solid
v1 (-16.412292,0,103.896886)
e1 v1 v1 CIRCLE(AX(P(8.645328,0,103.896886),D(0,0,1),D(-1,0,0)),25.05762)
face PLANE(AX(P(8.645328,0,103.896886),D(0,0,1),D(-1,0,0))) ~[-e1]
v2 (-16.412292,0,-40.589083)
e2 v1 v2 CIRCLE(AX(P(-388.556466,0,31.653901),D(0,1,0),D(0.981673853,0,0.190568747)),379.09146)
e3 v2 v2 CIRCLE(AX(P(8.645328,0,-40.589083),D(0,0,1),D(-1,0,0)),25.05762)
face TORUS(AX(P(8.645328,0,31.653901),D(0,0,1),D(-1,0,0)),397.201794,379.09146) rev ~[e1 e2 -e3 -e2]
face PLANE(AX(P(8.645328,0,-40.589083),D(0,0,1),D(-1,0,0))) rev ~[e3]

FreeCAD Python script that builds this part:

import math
import FreeCAD as App
import Part
import Sketcher

doc = App.newDocument("Part")
body = doc.addObject("PartDesign::Body", "Body")

# Sketch on XZ plane
sketch1 = body.newObject("Sketcher::SketchObject", "Sketch")
sketch1.AttachmentSupport = (doc.getObject("XZ_Plane"), [""])
sketch1.MapMode = "FlatFace"
sketch1.addGeometry([
    Part.ArcOfCircle(Part.Circle(App.Vector(-389, 32, 0), App.Vector(0, 0, 1), 379), math.radians(-11), math.radians(11)),
    Part.LineSegment(App.Vector(-16, -41, 0), App.Vector(9, -41, 0)),
    Part.LineSegment(App.Vector(9, -41, 0), App.Vector(9, 104, 0)),
    Part.LineSegment(App.Vector(9, 104, 0), App.Vector(-16, 104, 0)),
], False)
sketch1.addGeometry(Part.LineSegment(App.Vector(9, -41, 0), App.Vector(9, 104, 0)), True)  # axis
sketch1.addConstraint([
    Sketcher.Constraint("Coincident", 0, 1, 1, 1),
    Sketcher.Constraint("Coincident", 1, 2, 2, 1),
    Sketcher.Constraint("Coincident", 2, 2, 3, 1),
    Sketcher.Constraint("Coincident", 3, 2, 0, 2),
    Sketcher.Constraint("Horizontal", 1),
    Sketcher.Constraint("Vertical", 2),
    Sketcher.Constraint("Horizontal", 3),
    Sketcher.Constraint("Vertical", 4),
    Sketcher.Constraint("Coincident", 4, 1, 1, 2),
    Sketcher.Constraint("Horizontal", 3, 2, 4, 2),
    Sketcher.Constraint("Vertical", 0, 1, 3, 2),
    Sketcher.Constraint("Radius", 0, 379.09146),
    Sketcher.Constraint("DistanceX", 1, 1, 1, 2, 25.05762),
    Sketcher.Constraint("DistanceY", 2, 1, 2, 2, 144.485969),
    Sketcher.Constraint("DistanceY", -1, 1, 0, 3, 31.653901),
    Sketcher.Constraint("DistanceX", 0, 1, -1, 1, 16.412292),
])
revolution = body.newObject("PartDesign::Revolution", "Revolution")
revolution.Profile = sketch1
revolution.ReferenceAxis = (sketch1, ["Axis0"])
revolution.Angle = 360

doc.recompute()
